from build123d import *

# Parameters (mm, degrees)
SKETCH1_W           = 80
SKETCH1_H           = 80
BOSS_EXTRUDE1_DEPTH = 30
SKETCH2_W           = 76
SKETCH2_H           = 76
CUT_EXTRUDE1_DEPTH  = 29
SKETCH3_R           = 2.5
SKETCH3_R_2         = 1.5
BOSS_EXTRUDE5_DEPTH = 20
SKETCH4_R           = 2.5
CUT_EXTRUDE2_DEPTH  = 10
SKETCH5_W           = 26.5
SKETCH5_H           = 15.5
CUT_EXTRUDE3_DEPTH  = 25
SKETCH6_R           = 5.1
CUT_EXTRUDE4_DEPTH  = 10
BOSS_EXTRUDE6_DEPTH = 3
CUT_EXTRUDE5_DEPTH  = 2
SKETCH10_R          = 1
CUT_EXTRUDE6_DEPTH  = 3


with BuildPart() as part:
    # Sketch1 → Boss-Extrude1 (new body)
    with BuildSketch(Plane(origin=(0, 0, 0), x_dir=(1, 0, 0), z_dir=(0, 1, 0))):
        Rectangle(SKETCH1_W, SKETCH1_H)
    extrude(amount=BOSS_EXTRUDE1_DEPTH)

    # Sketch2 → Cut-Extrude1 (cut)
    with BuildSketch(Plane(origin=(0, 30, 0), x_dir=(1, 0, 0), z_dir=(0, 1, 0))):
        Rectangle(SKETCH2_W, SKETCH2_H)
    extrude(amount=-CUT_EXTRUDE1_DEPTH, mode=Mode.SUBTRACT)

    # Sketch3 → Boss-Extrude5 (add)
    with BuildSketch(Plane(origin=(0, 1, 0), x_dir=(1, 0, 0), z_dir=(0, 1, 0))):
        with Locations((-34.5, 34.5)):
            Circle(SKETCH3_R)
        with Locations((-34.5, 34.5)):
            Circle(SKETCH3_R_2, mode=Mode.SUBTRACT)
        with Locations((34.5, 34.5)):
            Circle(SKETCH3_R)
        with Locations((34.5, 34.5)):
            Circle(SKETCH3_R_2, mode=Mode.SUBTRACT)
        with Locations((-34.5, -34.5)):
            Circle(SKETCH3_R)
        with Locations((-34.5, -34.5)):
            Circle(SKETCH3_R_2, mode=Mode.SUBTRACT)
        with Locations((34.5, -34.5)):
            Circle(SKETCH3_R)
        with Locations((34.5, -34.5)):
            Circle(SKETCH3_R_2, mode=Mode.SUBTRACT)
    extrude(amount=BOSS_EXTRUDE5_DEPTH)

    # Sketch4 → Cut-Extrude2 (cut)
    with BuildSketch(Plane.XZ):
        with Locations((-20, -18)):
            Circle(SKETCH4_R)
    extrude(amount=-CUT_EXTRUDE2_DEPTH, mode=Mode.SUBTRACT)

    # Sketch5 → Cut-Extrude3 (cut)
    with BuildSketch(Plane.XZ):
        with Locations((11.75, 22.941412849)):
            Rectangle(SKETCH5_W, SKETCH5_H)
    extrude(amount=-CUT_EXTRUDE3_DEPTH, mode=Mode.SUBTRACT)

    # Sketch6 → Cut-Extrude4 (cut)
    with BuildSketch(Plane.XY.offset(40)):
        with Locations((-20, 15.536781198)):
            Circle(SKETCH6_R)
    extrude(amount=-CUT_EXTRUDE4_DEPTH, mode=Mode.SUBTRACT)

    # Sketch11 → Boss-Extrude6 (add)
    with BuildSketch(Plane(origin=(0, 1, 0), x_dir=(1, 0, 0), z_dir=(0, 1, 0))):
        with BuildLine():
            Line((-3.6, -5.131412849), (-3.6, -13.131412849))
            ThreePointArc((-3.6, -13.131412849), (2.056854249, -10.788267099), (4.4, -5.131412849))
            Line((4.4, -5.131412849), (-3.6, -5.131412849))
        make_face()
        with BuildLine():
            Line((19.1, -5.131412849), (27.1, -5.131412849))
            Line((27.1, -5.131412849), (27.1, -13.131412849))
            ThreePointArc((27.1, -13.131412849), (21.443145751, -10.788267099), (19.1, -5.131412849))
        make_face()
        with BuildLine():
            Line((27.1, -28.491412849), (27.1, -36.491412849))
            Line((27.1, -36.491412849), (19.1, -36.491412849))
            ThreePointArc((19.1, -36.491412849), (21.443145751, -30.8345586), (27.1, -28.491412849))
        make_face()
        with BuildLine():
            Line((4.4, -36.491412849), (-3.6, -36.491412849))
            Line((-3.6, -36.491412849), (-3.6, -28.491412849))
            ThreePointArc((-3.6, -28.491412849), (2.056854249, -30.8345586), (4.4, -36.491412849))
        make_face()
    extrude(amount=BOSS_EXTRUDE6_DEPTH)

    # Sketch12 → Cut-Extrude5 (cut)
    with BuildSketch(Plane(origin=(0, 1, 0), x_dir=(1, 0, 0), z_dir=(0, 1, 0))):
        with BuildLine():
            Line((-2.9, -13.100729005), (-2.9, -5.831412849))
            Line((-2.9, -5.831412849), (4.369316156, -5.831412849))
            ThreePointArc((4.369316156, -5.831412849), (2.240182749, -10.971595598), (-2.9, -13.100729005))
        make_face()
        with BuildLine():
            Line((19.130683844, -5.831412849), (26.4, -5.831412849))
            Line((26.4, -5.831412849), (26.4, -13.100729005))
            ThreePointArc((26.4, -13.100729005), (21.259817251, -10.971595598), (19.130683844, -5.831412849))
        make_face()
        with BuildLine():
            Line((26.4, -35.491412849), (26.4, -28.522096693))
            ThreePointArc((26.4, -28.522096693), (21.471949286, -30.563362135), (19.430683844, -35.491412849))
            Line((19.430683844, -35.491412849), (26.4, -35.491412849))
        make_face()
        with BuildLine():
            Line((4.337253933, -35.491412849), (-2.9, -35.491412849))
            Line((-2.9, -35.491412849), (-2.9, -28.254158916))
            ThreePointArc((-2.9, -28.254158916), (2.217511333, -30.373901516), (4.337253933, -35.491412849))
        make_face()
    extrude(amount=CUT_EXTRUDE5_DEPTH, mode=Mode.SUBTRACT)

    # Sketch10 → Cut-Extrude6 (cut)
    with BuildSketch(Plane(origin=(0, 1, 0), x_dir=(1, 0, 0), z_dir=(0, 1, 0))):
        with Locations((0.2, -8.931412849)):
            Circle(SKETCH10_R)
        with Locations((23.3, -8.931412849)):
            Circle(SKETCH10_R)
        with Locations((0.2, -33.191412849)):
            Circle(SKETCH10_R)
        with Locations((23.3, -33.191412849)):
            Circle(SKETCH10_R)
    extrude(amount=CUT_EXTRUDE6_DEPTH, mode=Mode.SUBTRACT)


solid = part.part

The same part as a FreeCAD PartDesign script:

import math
import FreeCAD as App
import Part
import Sketcher

doc = App.newDocument("Part")
body = doc.addObject("PartDesign::Body", "Body")

# Sketch on XZ plane
sketch1 = body.newObject("Sketcher::SketchObject", "Sketch")
sketch1.AttachmentSupport = (doc.getObject("XZ_Plane"), [""])
sketch1.MapMode = "FlatFace"
sketch1.addGeometry(Part.LineSegment(App.Vector(-40, -40, 0), App.Vector(-40, 40, 0)), False)
sketch1.addGeometry(Part.LineSegment(App.Vector(-40, 40, 0), App.Vector(40, 40, 0)), False)
sketch1.addGeometry(Part.LineSegment(App.Vector(40, 40, 0), App.Vector(40, -40, 0)), False)
sketch1.addGeometry(Part.LineSegment(App.Vector(40, -40, 0), App.Vector(-40, -40, 0)), False)
sketch1.addConstraint(Sketcher.Constraint("Coincident", 0, 2, 1, 1))
sketch1.addConstraint(Sketcher.Constraint("Coincident", 1, 2, 2, 1))
sketch1.addConstraint(Sketcher.Constraint("Coincident", 2, 2, 3, 1))
sketch1.addConstraint(Sketcher.Constraint("Coincident", 3, 2, 0, 1))
sketch1.addConstraint(Sketcher.Constraint("Vertical", 0))
sketch1.addConstraint(Sketcher.Constraint("Horizontal", 1))
sketch1.addConstraint(Sketcher.Constraint("Vertical", 2))
sketch1.addConstraint(Sketcher.Constraint("Horizontal", 3))
sketch1.addConstraint(Sketcher.Constraint("Symmetric", 0, 2, 2, 2, -1, 1))
sketch1.addConstraint(Sketcher.Constraint("Equal", 3, 0))
sketch1.addConstraint(Sketcher.Constraint("DistanceX", 1, 1, 1, 2, 80.0))
pad1 = body.newObject("PartDesign::Pad", "Pad")
pad1.Profile = sketch1
pad1.Length = 30
pad1.Reversed = True

# Sketch on XZ plane
sketch2 = body.newObject("Sketcher::SketchObject", "Sketch001")
sketch2.AttachmentSupport = (doc.getObject("XZ_Plane"), [""])
sketch2.MapMode = "FlatFace"
sketch2.AttachmentOffset = App.Placement(App.Vector(0, 0, -30), App.Rotation())
sketch2.addGeometry(Part.LineSegment(App.Vector(-38, -38, 0), App.Vector(-38, 38, 0)), False)
sketch2.addGeometry(Part.LineSegment(App.Vector(-38, 38, 0), App.Vector(38, 38, 0)), False)
sketch2.addGeometry(Part.LineSegment(App.Vector(38, 38, 0), App.Vector(38, -38, 0)), False)
sketch2.addGeometry(Part.LineSegment(App.Vector(38, -38, 0), App.Vector(-38, -38, 0)), False)
sketch2.addConstraint(Sketcher.Constraint("Coincident", 0, 2, 1, 1))
sketch2.addConstraint(Sketcher.Constraint("Coincident", 1, 2, 2, 1))
sketch2.addConstraint(Sketcher.Constraint("Coincident", 2, 2, 3, 1))
sketch2.addConstraint(Sketcher.Constraint("Coincident", 3, 2, 0, 1))
sketch2.addConstraint(Sketcher.Constraint("Vertical", 0))
sketch2.addConstraint(Sketcher.Constraint("Horizontal", 1))
sketch2.addConstraint(Sketcher.Constraint("Vertical", 2))
sketch2.addConstraint(Sketcher.Constraint("Horizontal", 3))
sketch2.addConstraint(Sketcher.Constraint("Symmetric", 0, 2, 2, 2, -1, 1))
sketch2.addConstraint(Sketcher.Constraint("Equal", 3, 0))
sketch2.addConstraint(Sketcher.Constraint("DistanceX", 1, 1, 1, 2, 76.0))
pocket1 = body.newObject("PartDesign::Pocket", "Pocket")
pocket1.Profile = sketch2
pocket1.Length = 29
pocket1.Reversed = True

# Sketch on XZ plane
sketch3 = body.newObject("Sketcher::SketchObject", "Sketch002")
sketch3.AttachmentSupport = (doc.getObject("XZ_Plane"), [""])
sketch3.MapMode = "FlatFace"
sketch3.AttachmentOffset = App.Placement(App.Vector(0, 0, -1), App.Rotation())
sketch3.addGeometry(Part.Circle(App.Vector(-34.5, -34.5, 0), App.Vector(0, 0, 1), 2.5), False)
sketch3.addGeometry(Part.Circle(App.Vector(-34.5, -34.5, 0), App.Vector(0, 0, 1), 1.5), False)
sketch3.addGeometry(Part.Circle(App.Vector(34.5, -34.5, 0), App.Vector(0, 0, 1), 2.5), False)
sketch3.addGeometry(Part.Circle(App.Vector(34.5, -34.5, 0), App.Vector(0, 0, 1), 1.5), False)
sketch3.addGeometry(Part.Circle(App.Vector(-34.5, 34.5, 0), App.Vector(0, 0, 1), 2.5), False)
sketch3.addGeometry(Part.Circle(App.Vector(-34.5, 34.5, 0), App.Vector(0, 0, 1), 1.5), False)
sketch3.addGeometry(Part.Circle(App.Vector(34.5, 34.5, 0), App.Vector(0, 0, 1), 2.5), False)
sketch3.addGeometry(Part.Circle(App.Vector(34.5, 34.5, 0), App.Vector(0, 0, 1), 1.5), False)
sketch3.addConstraint(Sketcher.Constraint("Coincident", 1, 3, 0, 3))
sketch3.addConstraint(Sketcher.Constraint("Coincident", 3, 3, 2, 3))
sketch3.addConstraint(Sketcher.Constraint("Coincident", 5, 3, 4, 3))
sketch3.addConstraint(Sketcher.Constraint("Coincident", 7, 3, 6, 3))
sketch3.addConstraint(Sketcher.Constraint("Equal", 0, 2))
sketch3.addConstraint(Sketcher.Constraint("Equal", 1, 3))
sketch3.addConstraint(Sketcher.Constraint("Equal", 2, 4))
sketch3.addConstraint(Sketcher.Constraint("Equal", 3, 5))
sketch3.addConstraint(Sketcher.Constraint("Equal", 4, 6))
sketch3.addConstraint(Sketcher.Constraint("Equal", 5, 7))
sketch3.addConstraint(Sketcher.Constraint("Symmetric", 2, 3, 4, 3, -1, 1))
sketch3.addConstraint(Sketcher.Constraint("Symmetric", 0, 3, 6, 3, -1, 1))
sketch3.addConstraint(Sketcher.Constraint("Symmetric", 0, 3, 2, 3, -2))
sketch3.addConstraint(Sketcher.Constraint("Diameter", 0, 5.0))
sketch3.addConstraint(Sketcher.Constraint("Diameter", 1, 3.0))
sketch3.addConstraint(Sketcher.Constraint("DistanceX", 0, 3, 2, 3, 69.0))
sketch3.addConstraint(Sketcher.Constraint("DistanceY", 0, 3, 4, 3, 69.0))
pad2 = body.newObject("PartDesign::Pad", "Pad001")
pad2.Profile = sketch3
pad2.Length = 20
pad2.Reversed = True

# Sketch on XZ plane
sketch4 = body.newObject("Sketcher::SketchObject", "Sketch003")
sketch4.AttachmentSupport = (doc.getObject("XZ_Plane"), [""])
sketch4.MapMode = "FlatFace"
sketch4.addGeometry(Part.Circle(App.Vector(-20, -18, 0), App.Vector(0, 0, 1), 2.5), False)
sketch4.addConstraint(Sketcher.Constraint("Diameter", 0, 5.0))
sketch4.addConstraint(Sketcher.Constraint("DistanceX", 0, 3, -1, 1, 20.0))
sketch4.addConstraint(Sketcher.Constraint("DistanceY", 0, 3, -1, 1, 18.0))
pocket2 = body.newObject("PartDesign::Pocket", "Pocket001")
pocket2.Profile = sketch4
pocket2.Length = 10

# Sketch on XZ plane
sketch5 = body.newObject("Sketcher::SketchObject", "Sketch004")
sketch5.AttachmentSupport = (doc.getObject("XZ_Plane"), [""])
sketch5.MapMode = "FlatFace"
sketch5.addGeometry(Part.LineSegment(App.Vector(-2, 31, 0), App.Vector(-2, 15, 0)), False)
sketch5.addGeometry(Part.LineSegment(App.Vector(-2, 15, 0), App.Vector(25, 15, 0)), False)
sketch5.addGeometry(Part.LineSegment(App.Vector(25, 15, 0), App.Vector(25, 31, 0)), False)
sketch5.addGeometry(Part.LineSegment(App.Vector(25, 31, 0), App.Vector(-2, 31, 0)), False)
sketch5.addConstraint(Sketcher.Constraint("Coincident", 0, 2, 1, 1))
sketch5.addConstraint(Sketcher.Constraint("Coincident", 1, 2, 2, 1))
sketch5.addConstraint(Sketcher.Constraint("Coincident", 2, 2, 3, 1))
sketch5.addConstraint(Sketcher.Constraint("Coincident", 3, 2, 0, 1))
sketch5.addConstraint(Sketcher.Constraint("Vertical", 0))
sketch5.addConstraint(Sketcher.Constraint("Horizontal", 1))
sketch5.addConstraint(Sketcher.Constraint("Vertical", 2))
sketch5.addConstraint(Sketcher.Constraint("Horizontal", 3))
sketch5.addConstraint(Sketcher.Constraint("DistanceX", 1, 1, 1, 2, 26.5))
sketch5.addConstraint(Sketcher.Constraint("DistanceY", 0, 2, 0, 1, 15.5))
sketch5.addConstraint(Sketcher.Constraint("DistanceX", -1, 1, 1, 2, 25.0))
sketch5.addConstraint(Sketcher.Constraint("DistanceY", -1, 1, 0, 2, 15.191413))
pocket3 = body.newObject("PartDesign::Pocket", "Pocket002")
pocket3.Profile = sketch5
pocket3.Length = 25

# Sketch on XY plane
sketch6 = body.newObject("Sketcher::SketchObject", "Sketch005")
sketch6.AttachmentSupport = (doc.getObject("XY_Plane"), [""])
sketch6.MapMode = "FlatFace"
sketch6.AttachmentOffset = App.Placement(App.Vector(0, 0, 40), App.Rotation())
sketch6.addGeometry(Part.Circle(App.Vector(-20, 16, 0), App.Vector(0, 0, 1), 5), False)
sketch6.addConstraint(Sketcher.Constraint("Diameter", 0, 10.2))
sketch6.addConstraint(Sketcher.Constraint("DistanceX", 0, 3, -1, 1, 20.0))
sketch6.addConstraint(Sketcher.Constraint("DistanceY", -1, 1, 0, 3, 15.536781))
pocket4 = body.newObject("PartDesign::Pocket", "Pocket003")
pocket4.Profile = sketch6
pocket4.Length = 10

# Sketch on XZ plane
sketch7 = body.newObject("Sketcher::SketchObject", "Sketch006")
sketch7.AttachmentSupport = (doc.getObject("XZ_Plane"), [""])
sketch7.MapMode = "FlatFace"
sketch7.AttachmentOffset = App.Placement(App.Vector(0, 0, -1), App.Rotation())
sketch7.addGeometry(Part.LineSegment(App.Vector(-4, 5, 0), App.Vector(-4, 13, 0)), False)
sketch7.addGeometry(Part.ArcOfCircle(Part.Circle(App.Vector(-4, 5, 0), App.Vector(0, 0, 1), 8), math.radians(0), math.radians(90)), False)
sketch7.addGeometry(Part.LineSegment(App.Vector(4, 5, 0), App.Vector(-4, 5, 0)), False)
sketch7.addGeometry(Part.LineSegment(App.Vector(27, 5, 0), App.Vector(19, 5, 0)), False)
sketch7.addGeometry(Part.ArcOfCircle(Part.Circle(App.Vector(27, 5, 0), App.Vector(0, 0, 1), 8), math.radians(90), math.radians(180)), False)
sketch7.addGeometry(Part.LineSegment(App.Vector(27, 13, 0), App.Vector(27, 5, 0)), False)
sketch7.addGeometry(Part.LineSegment(App.Vector(27, 36, 0), App.Vector(27, 28, 0)), False)
sketch7.addGeometry(Part.ArcOfCircle(Part.Circle(App.Vector(27, 36, 0), App.Vector(0, 0, 1), 8), math.radians(-180), math.radians(-90)), False)
sketch7.addGeometry(Part.LineSegment(App.Vector(19, 36, 0), App.Vector(27, 36, 0)), False)
sketch7.addGeometry(Part.LineSegment(App.Vector(-4, 36, 0), App.Vector(4, 36, 0)), False)
sketch7.addGeometry(Part.ArcOfCircle(Part.Circle(App.Vector(-4, 36, 0), App.Vector(0, 0, 1), 8), math.radians(-90), math.radians(0)), False)
sketch7.addGeometry(Part.LineSegment(App.Vector(-4, 28, 0), App.Vector(-4, 36, 0)), False)
sketch7.addConstraint(Sketcher.Constraint("Coincident", 0, 2, 1, 2))
sketch7.addConstraint(Sketcher.Constraint("Coincident", 1, 1, 2, 1))
sketch7.addConstraint(Sketcher.Constraint("Coincident", 2, 2, 0, 1))
sketch7.addConstraint(Sketcher.Constraint("Coincident", 3, 2, 4, 2))
sketch7.addConstraint(Sketcher.Constraint("Coincident", 4, 1, 5, 1))
sketch7.addConstraint(Sketcher.Constraint("Coincident", 5, 2, 3, 1))
sketch7.addConstraint(Sketcher.Constraint("Coincident", 6, 2, 7, 2))
sketch7.addConstraint(Sketcher.Constraint("Coincident", 7, 1, 8, 1))
sketch7.addConstraint(Sketcher.Constraint("Coincident", 8, 2, 6, 1))
sketch7.addConstraint(Sketcher.Constraint("Coincident", 9, 2, 10, 2))
sketch7.addConstraint(Sketcher.Constraint("Coincident", 10, 1, 11, 1))
sketch7.addConstraint(Sketcher.Constraint("Coincident", 11, 2, 9, 1))
sketch7.addConstraint(Sketcher.Constraint("Vertical", 0))
sketch7.addConstraint(Sketcher.Constraint("Horizontal", 2))
sketch7.addConstraint(Sketcher.Constraint("Horizontal", 3))
sketch7.addConstraint(Sketcher.Constraint("Vertical", 5))
sketch7.addConstraint(Sketcher.Constraint("Vertical", 6))
sketch7.addConstraint(Sketcher.Constraint("Horizontal", 8))
sketch7.addConstraint(Sketcher.Constraint("Horizontal", 9))
sketch7.addConstraint(Sketcher.Constraint("Vertical", 11))
sketch7.addConstraint(Sketcher.Constraint("Coincident", 2, 2, 1, 3))
sketch7.addConstraint(Sketcher.Constraint("Coincident", 5, 2, 4, 3))
sketch7.addConstraint(Sketcher.Constraint("Coincident", 8, 2, 7, 3))
sketch7.addConstraint(Sketcher.Constraint("Coincident", 11, 2, 10, 3))
sketch7.addConstraint(Sketcher.Constraint("Equal", 1, 4))
sketch7.addConstraint(Sketcher.Constraint("Equal", 4, 7))
sketch7.addConstraint(Sketcher.Constraint("Equal", 7, 10))
sketch7.addConstraint(Sketcher.Constraint("Horizontal", 1, 3, 4, 3))
sketch7.addConstraint(Sketcher.Constraint("Horizontal", 7, 3, 10, 3))
sketch7.addConstraint(Sketcher.Constraint("Vertical", 4, 3, 7, 3))
sketch7.addConstraint(Sketcher.Constraint("Vertical", 1, 3, 10, 3))
sketch7.addConstraint(Sketcher.Constraint("Radius", 1, 8.0))
sketch7.addConstraint(Sketcher.Constraint("DistanceX", 1, 3, -1, 1, 3.6))
sketch7.addConstraint(Sketcher.Constraint("DistanceX", -1, 1, 4, 3, 27.1))
sketch7.addConstraint(Sketcher.Constraint("DistanceY", 4, 3, 7, 3, 31.36))
sketch7.addConstraint(Sketcher.Constraint("DistanceY", -1, 1, 1, 3, 5.131413))
pad3 = body.newObject("PartDesign::Pad", "Pad002")
pad3.Profile = sketch7
pad3.Length = 3
pad3.Reversed = True

# Sketch on XZ plane
sketch8 = body.newObject("Sketcher::SketchObject", "Sketch007")
sketch8.AttachmentSupport = (doc.getObject("XZ_Plane"), [""])
sketch8.MapMode = "FlatFace"
sketch8.AttachmentOffset = App.Placement(App.Vector(0, 0, -1), App.Rotation())
sketch8.addGeometry(Part.LineSegment(App.Vector(-3, 6, 0), App.Vector(-3, 13, 0)), False)
sketch8.addGeometry(Part.ArcOfCircle(Part.Circle(App.Vector(-3, 6, 0), App.Vector(0, 0, 1), 7), math.radians(0), math.radians(90)), False)
sketch8.addGeometry(Part.LineSegment(App.Vector(4, 6, 0), App.Vector(-3, 6, 0)), False)
sketch8.addGeometry(Part.LineSegment(App.Vector(26, 6, 0), App.Vector(19, 6, 0)), False)
sketch8.addGeometry(Part.ArcOfCircle(Part.Circle(App.Vector(26, 6, 0), App.Vector(0, 0, 1), 7), math.radians(90), math.radians(180)), False)
sketch8.addGeometry(Part.LineSegment(App.Vector(26, 13, 0), App.Vector(26, 6, 0)), False)
sketch8.addGeometry(Part.LineSegment(App.Vector(26, 35, 0), App.Vector(26, 29, 0)), False)
sketch8.addGeometry(Part.ArcOfCircle(Part.Circle(App.Vector(26, 35, 0), App.Vector(0, 0, 1), 7), math.radians(180), math.radians(270)), False)
sketch8.addGeometry(Part.LineSegment(App.Vector(19, 35, 0), App.Vector(26, 35, 0)), False)
sketch8.addGeometry(Part.LineSegment(App.Vector(-3, 35, 0), App.Vector(4, 35, 0)), False)
sketch8.addGeometry(Part.ArcOfCircle(Part.Circle(App.Vector(-3, 35, 0), App.Vector(0, 0, 1), 7), math.radians(-90), math.radians(0)), False)
sketch8.addGeometry(Part.LineSegment(App.Vector(-3, 28, 0), App.Vector(-3, 35, 0)), False)
sketch8.addConstraint(Sketcher.Constraint("Coincident", 0, 2, 1, 2))
sketch8.addConstraint(Sketcher.Constraint("Coincident", 1, 1, 2, 1))
sketch8.addConstraint(Sketcher.Constraint("Coincident", 2, 2, 0, 1))
sketch8.addConstraint(Sketcher.Constraint("Coincident", 3, 2, 4, 2))
sketch8.addConstraint(Sketcher.Constraint("Coincident", 4, 1, 5, 1))
sketch8.addConstraint(Sketcher.Constraint("Coincident", 5, 2, 3, 1))
sketch8.addConstraint(Sketcher.Constraint("Coincident", 6, 2, 7, 2))
sketch8.addConstraint(Sketcher.Constraint("Coincident", 7, 1, 8, 1))
sketch8.addConstraint(Sketcher.Constraint("Coincident", 8, 2, 6, 1))
sketch8.addConstraint(Sketcher.Constraint("Coincident", 9, 2, 10, 2))
sketch8.addConstraint(Sketcher.Constraint("Coincident", 10, 1, 11, 1))
sketch8.addConstraint(Sketcher.Constraint("Coincident", 11, 2, 9, 1))
sketch8.addConstraint(Sketcher.Constraint("Vertical", 0))
sketch8.addConstraint(Sketcher.Constraint("Horizontal", 2))
sketch8.addConstraint(Sketcher.Constraint("Horizontal", 3))
sketch8.addConstraint(Sketcher.Constraint("Vertical", 5))
sketch8.addConstraint(Sketcher.Constraint("Vertical", 6))
sketch8.addConstraint(Sketcher.Constraint("Horizontal", 8))
sketch8.addConstraint(Sketcher.Constraint("Horizontal", 9))
sketch8.addConstraint(Sketcher.Constraint("Vertical", 11))
sketch8.addConstraint(Sketcher.Constraint("Coincident", 2, 2, 1, 3))
sketch8.addConstraint(Sketcher.Constraint("Coincident", 5, 2, 4, 3))
sketch8.addConstraint(Sketcher.Constraint("Coincident", 8, 2, 7, 3))
sketch8.addConstraint(Sketcher.Constraint("Coincident", 11, 2, 10, 3))
sketch8.addConstraint(Sketcher.Constraint("Equal", 1, 4))
sketch8.addConstraint(Sketcher.Constraint("Horizontal", 1, 3, 4, 3))
sketch8.addConstraint(Sketcher.Constraint("Horizontal", 7, 3, 10, 3))
sketch8.addConstraint(Sketcher.Constraint("Vertical", 4, 3, 7, 3))
sketch8.addConstraint(Sketcher.Constraint("Vertical", 1, 3, 10, 3))
sketch8.addConstraint(Sketcher.Constraint("DistanceX", 1, 3, -1, 1, 2.9))
sketch8.addConstraint(Sketcher.Constraint("DistanceX", -1, 1, 4, 3, 26.4))
sketch8.addConstraint(Sketcher.Constraint("DistanceX", 3, 2, 7, 1, 0.3))
sketch8.addConstraint(Sketcher.Constraint("DistanceY", 4, 3, 7, 3, 29.66))
sketch8.addConstraint(Sketcher.Constraint("Radius", 1, 7.269316))
sketch8.addConstraint(Sketcher.Constraint("Radius", 10, 7.237254))
sketch8.addConstraint(Sketcher.Constraint("DistanceY", -1, 1, 0, 2, 13.100729))
pocket5 = body.newObject("PartDesign::Pocket", "Pocket004")
pocket5.Profile = sketch8
pocket5.Length = 2

# Sketch on XZ plane
sketch9 = body.newObject("Sketcher::SketchObject", "Sketch008")
sketch9.AttachmentSupport = (doc.getObject("XZ_Plane"), [""])
sketch9.MapMode = "FlatFace"
sketch9.AttachmentOffset = App.Placement(App.Vector(0, 0, -1), App.Rotation())
sketch9.addGeometry(Part.Circle(App.Vector(0.2, 8.9, 0), App.Vector(0, 0, 1), 1), False)
sketch9.addGeometry(Part.Circle(App.Vector(23.3, 8.9, 0), App.Vector(0, 0, 1), 1), False)
sketch9.addGeometry(Part.Circle(App.Vector(0.2, 33.2, 0), App.Vector(0, 0, 1), 1), False)
sketch9.addGeometry(Part.Circle(App.Vector(23.3, 33.2, 0), App.Vector(0, 0, 1), 1), False)
sketch9.addConstraint(Sketcher.Constraint("Equal", 0, 1))
sketch9.addConstraint(Sketcher.Constraint("Equal", 1, 2))
sketch9.addConstraint(Sketcher.Constraint("Equal", 2, 3))
sketch9.addConstraint(Sketcher.Constraint("Horizontal", 0, 3, 1, 3))
sketch9.addConstraint(Sketcher.Constraint("Horizontal", 2, 3, 3, 3))
sketch9.addConstraint(Sketcher.Constraint("Vertical", 0, 3, 2, 3))
sketch9.addConstraint(Sketcher.Constraint("Vertical", 1, 3, 3, 3))
sketch9.addConstraint(Sketcher.Constraint("Diameter", 0, 2.0))
sketch9.addConstraint(Sketcher.Constraint("DistanceX", -1, 1, 0, 3, 0.2))
sketch9.addConstraint(Sketcher.Constraint("DistanceX", -1, 1, 1, 3, 23.3))
sketch9.addConstraint(Sketcher.Constraint("DistanceY", 0, 3, 2, 3, 24.26))
sketch9.addConstraint(Sketcher.Constraint("DistanceY", -1, 1, 0, 3, 8.931413))
pocket6 = body.newObject("PartDesign::Pocket", "Pocket005")
pocket6.Profile = sketch9
pocket6.Length = 3

doc.recompute()
